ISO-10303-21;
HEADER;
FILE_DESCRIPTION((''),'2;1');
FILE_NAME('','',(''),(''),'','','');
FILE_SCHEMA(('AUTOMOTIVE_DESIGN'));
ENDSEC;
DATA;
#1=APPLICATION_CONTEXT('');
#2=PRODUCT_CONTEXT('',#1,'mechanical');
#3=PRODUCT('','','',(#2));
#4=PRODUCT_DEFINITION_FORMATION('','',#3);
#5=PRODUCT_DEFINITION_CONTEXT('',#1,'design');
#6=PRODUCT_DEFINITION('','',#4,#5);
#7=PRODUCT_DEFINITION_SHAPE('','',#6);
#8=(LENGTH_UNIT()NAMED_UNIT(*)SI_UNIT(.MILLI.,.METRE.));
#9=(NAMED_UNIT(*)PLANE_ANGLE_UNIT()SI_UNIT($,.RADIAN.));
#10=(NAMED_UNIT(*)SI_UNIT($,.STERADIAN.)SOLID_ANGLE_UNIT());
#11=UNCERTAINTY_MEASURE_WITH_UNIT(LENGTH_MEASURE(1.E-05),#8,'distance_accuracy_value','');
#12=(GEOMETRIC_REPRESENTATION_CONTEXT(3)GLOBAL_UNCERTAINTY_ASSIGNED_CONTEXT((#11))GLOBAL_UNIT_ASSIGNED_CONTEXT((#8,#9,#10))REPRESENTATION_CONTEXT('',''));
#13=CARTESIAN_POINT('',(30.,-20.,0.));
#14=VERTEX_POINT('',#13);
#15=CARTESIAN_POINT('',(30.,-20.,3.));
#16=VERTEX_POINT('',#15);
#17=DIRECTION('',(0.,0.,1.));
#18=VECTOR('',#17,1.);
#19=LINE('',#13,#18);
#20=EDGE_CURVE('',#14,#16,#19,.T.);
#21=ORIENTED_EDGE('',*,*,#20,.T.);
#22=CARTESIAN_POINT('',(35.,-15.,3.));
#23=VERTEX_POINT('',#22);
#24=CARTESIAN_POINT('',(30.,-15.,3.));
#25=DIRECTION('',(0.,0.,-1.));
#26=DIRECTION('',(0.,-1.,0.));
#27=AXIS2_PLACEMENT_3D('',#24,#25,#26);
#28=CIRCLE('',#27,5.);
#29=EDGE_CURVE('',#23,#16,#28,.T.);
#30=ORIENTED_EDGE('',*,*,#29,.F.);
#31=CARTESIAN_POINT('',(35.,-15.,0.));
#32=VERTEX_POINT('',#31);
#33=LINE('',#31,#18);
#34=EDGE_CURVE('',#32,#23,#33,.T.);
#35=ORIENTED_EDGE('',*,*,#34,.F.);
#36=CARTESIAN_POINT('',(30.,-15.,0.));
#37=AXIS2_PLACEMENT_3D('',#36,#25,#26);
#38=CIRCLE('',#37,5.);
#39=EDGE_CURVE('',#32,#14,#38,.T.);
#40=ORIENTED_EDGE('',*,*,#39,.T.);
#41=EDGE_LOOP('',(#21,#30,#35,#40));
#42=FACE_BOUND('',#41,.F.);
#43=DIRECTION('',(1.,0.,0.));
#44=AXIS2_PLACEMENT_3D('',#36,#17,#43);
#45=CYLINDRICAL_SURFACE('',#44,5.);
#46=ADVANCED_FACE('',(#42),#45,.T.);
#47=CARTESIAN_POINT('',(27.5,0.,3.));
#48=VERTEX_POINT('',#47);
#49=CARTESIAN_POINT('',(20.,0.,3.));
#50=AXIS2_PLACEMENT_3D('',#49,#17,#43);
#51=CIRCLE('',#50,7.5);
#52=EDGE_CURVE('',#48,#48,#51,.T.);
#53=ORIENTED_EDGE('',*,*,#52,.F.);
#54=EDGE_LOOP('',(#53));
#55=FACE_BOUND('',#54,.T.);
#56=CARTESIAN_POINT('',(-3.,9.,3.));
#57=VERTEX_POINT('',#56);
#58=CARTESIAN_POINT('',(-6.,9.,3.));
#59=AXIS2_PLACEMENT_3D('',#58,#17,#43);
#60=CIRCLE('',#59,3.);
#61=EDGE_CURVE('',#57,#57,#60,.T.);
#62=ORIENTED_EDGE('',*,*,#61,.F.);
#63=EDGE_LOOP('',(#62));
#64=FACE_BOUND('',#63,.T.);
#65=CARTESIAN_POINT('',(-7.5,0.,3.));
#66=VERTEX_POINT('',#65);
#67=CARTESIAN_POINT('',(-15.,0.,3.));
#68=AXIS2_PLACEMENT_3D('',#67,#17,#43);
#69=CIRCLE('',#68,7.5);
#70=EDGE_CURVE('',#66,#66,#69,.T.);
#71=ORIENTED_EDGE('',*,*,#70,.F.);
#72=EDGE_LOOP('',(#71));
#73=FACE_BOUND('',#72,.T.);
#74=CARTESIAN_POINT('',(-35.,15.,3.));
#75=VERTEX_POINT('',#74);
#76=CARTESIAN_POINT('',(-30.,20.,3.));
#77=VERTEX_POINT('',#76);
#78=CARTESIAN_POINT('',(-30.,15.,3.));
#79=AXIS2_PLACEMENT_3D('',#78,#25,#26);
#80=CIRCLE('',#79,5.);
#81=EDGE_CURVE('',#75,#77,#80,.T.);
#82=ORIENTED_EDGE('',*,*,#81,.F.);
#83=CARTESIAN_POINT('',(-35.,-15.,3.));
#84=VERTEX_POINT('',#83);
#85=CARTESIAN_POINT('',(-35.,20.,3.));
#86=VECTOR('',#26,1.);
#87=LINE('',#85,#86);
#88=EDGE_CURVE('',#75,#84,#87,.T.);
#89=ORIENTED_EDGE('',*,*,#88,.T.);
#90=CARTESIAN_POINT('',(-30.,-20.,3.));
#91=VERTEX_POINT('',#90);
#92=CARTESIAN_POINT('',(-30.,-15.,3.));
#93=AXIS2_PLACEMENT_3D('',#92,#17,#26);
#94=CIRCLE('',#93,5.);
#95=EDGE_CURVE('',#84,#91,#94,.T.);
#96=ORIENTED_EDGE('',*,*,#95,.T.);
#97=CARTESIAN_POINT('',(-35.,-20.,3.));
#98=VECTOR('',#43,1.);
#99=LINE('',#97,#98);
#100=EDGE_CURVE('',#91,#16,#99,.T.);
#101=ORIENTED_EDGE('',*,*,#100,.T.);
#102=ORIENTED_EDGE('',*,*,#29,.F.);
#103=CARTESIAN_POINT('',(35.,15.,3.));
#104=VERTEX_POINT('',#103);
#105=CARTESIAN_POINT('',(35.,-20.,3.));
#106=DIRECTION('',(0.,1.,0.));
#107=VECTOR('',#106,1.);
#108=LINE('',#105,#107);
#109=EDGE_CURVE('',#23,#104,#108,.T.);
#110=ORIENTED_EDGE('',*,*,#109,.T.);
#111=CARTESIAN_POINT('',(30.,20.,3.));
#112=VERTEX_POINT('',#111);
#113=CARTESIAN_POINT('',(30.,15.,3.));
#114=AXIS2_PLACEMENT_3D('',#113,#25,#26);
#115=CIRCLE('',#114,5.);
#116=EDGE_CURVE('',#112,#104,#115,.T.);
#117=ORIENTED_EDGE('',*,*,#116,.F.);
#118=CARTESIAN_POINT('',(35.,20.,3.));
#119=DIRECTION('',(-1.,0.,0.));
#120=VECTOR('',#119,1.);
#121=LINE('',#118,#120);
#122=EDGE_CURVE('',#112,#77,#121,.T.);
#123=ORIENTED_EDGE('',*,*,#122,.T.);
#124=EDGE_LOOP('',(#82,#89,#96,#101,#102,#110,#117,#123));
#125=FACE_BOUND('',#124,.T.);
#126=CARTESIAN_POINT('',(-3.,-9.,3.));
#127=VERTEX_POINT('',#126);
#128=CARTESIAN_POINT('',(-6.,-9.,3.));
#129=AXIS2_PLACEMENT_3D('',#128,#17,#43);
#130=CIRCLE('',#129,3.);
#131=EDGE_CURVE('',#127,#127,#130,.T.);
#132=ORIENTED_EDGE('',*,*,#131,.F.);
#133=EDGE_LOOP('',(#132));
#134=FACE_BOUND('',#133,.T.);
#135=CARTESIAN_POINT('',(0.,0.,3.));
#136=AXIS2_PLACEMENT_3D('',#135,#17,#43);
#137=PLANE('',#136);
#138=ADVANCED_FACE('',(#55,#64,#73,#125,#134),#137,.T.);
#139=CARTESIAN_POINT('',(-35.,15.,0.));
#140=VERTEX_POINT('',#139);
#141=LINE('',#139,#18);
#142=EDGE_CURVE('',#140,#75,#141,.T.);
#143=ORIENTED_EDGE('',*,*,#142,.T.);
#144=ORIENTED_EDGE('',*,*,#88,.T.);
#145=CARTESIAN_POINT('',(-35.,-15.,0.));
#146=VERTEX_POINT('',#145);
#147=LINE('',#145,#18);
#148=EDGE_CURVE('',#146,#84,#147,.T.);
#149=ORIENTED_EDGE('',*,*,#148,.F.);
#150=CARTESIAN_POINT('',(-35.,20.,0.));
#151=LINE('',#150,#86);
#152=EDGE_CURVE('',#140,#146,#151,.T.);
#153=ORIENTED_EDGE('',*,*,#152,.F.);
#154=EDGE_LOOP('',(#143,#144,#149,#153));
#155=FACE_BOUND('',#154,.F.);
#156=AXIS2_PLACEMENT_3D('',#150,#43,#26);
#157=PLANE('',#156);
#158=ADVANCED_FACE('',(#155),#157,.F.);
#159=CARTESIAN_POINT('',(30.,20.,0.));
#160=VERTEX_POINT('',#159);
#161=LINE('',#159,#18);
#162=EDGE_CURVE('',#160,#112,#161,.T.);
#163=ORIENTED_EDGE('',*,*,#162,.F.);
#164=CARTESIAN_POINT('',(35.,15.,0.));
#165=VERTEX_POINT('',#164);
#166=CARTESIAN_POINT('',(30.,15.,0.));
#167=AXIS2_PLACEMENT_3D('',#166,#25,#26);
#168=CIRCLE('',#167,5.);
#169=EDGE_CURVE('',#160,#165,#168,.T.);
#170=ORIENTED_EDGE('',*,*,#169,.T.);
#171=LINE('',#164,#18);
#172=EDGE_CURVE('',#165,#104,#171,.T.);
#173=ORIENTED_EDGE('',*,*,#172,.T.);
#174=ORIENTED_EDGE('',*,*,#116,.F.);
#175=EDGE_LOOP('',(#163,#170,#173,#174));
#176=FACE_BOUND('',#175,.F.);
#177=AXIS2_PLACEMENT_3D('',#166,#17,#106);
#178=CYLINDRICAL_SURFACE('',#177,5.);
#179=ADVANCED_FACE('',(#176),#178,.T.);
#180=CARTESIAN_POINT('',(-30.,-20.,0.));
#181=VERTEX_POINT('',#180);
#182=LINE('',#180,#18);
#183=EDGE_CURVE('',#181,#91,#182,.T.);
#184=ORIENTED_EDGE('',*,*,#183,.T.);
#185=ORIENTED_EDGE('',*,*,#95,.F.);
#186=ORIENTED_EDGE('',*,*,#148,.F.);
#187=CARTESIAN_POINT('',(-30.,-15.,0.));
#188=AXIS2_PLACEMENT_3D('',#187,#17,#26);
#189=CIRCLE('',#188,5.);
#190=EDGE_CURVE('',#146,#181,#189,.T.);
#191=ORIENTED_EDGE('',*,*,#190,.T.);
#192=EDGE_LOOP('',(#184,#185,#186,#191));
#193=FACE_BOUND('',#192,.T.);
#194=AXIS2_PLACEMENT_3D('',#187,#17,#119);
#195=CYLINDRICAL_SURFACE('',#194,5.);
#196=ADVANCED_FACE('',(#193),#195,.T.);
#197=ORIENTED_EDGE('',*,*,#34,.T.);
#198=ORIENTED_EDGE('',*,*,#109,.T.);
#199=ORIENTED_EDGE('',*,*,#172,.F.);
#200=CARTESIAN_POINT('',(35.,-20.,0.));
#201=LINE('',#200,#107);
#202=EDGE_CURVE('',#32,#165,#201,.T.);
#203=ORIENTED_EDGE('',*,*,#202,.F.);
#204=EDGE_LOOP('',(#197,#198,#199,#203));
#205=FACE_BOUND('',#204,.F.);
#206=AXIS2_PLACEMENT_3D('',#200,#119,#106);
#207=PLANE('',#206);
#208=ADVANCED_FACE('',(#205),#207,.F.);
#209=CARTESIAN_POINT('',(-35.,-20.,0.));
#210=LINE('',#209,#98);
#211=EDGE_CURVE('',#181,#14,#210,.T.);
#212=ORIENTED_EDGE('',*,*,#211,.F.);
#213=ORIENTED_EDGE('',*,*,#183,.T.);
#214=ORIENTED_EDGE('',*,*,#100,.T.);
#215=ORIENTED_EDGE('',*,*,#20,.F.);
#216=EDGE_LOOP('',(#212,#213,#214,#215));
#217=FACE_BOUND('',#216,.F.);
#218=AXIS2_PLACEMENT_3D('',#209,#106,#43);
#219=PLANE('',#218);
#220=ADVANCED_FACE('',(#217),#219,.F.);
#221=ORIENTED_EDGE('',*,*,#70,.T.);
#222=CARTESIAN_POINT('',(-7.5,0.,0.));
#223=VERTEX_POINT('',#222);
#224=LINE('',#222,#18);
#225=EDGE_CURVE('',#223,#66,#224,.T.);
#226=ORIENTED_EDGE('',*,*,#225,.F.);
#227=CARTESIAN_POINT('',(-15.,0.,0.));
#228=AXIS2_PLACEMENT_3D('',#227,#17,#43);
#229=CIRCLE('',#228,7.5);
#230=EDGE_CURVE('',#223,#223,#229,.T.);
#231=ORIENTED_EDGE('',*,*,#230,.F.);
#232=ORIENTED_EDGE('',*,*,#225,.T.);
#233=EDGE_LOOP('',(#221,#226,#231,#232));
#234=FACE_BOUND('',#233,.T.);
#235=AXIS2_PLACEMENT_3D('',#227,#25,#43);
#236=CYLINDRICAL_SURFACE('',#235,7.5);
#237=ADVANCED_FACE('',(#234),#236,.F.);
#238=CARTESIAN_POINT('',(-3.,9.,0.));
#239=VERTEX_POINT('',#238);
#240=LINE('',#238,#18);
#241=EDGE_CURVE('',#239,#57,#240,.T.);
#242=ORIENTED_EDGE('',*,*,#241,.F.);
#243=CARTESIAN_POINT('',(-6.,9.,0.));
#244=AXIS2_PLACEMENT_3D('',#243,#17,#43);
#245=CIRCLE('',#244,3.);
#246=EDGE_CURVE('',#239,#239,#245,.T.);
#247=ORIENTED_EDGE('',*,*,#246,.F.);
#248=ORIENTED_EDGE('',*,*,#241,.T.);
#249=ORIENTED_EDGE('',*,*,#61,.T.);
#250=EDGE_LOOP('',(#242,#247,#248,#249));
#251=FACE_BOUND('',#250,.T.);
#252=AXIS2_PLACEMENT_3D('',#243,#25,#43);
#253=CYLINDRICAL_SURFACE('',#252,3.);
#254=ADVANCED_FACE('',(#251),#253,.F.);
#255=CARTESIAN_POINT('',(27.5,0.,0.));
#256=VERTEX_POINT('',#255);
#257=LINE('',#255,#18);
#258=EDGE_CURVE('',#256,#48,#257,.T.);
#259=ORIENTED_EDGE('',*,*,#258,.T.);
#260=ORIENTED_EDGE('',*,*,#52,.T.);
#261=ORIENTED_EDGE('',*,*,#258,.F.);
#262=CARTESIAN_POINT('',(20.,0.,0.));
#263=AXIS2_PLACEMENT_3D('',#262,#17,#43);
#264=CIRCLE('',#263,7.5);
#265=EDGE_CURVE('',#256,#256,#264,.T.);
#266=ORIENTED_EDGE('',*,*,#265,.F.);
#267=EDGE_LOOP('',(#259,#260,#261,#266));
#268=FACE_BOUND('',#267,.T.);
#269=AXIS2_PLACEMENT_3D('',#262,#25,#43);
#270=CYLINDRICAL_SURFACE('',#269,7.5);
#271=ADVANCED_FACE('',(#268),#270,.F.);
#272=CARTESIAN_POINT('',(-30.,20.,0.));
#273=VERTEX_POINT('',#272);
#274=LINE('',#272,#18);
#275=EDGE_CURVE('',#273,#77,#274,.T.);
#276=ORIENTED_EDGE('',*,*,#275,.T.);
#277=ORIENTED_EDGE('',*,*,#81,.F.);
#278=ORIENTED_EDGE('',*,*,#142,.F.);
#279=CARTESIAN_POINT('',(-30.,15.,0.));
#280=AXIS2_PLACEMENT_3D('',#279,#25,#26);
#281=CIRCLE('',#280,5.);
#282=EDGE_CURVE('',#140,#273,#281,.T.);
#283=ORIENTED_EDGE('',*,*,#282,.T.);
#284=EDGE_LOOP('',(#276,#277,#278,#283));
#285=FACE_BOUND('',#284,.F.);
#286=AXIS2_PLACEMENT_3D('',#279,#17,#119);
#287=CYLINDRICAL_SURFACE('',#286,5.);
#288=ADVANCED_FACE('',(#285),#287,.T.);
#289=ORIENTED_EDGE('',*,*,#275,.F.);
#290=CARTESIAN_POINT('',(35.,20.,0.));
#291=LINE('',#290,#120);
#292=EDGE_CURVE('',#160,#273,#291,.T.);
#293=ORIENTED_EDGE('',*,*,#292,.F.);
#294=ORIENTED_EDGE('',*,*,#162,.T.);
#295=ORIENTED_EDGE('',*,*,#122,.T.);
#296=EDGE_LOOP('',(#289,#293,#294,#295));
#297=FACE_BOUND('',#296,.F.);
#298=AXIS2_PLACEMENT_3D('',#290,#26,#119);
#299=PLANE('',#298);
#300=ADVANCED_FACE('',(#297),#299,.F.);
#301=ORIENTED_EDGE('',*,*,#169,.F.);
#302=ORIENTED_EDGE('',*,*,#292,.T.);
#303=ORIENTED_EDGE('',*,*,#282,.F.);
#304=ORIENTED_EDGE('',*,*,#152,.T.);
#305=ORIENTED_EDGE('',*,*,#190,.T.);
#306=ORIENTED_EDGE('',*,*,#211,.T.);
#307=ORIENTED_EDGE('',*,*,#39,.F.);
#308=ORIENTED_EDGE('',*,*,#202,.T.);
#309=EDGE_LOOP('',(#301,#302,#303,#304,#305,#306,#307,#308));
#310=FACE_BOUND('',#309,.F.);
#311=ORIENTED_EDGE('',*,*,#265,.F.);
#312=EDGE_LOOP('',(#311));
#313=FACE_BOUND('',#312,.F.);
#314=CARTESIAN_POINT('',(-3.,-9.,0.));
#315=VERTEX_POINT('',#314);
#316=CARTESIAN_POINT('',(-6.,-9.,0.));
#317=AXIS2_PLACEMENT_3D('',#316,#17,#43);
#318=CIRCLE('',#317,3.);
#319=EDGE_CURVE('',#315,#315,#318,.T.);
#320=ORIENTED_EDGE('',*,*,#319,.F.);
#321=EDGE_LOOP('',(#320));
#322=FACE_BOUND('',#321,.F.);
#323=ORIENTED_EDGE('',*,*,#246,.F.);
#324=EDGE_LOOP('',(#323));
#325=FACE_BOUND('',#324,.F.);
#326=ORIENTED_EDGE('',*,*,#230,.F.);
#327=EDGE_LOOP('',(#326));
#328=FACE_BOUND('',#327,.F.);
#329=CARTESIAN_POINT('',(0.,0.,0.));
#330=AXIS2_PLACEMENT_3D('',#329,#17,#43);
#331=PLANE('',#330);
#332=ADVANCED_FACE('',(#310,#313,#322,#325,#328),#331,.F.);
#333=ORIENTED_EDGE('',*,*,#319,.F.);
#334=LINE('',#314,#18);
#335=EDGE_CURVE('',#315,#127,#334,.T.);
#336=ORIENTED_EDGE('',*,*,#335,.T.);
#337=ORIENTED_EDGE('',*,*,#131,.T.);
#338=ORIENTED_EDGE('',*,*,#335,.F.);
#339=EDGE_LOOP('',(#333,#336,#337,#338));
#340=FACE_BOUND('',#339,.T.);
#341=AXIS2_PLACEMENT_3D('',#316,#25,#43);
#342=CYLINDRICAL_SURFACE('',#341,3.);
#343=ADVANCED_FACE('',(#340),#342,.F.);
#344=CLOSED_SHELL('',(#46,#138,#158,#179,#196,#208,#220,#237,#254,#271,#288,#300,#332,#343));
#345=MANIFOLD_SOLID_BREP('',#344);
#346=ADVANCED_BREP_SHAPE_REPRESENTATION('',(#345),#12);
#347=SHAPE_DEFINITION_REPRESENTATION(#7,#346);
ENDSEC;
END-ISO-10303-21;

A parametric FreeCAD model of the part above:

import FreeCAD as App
import Part
import Sketcher
Q = App.Units.Quantity


def edges_at(feature, points):
    """Names of the edges that pass closest to the given points."""
    edges = feature.Shape.Edges
    near = lambda p: min(range(len(edges)), key=lambda i: edges[i].distToShape(Part.Vertex(*p))[0])
    return sorted({f"Edge{near(p) + 1}" for p in points})

doc = App.newDocument("Part")
body = doc.addObject("PartDesign::Body", "Body")

# Sketch on XY plane
sketch1 = doc.addObject("Sketcher::SketchObject", "Sketch")
body.addObject(sketch1)
sketch1.AttachmentSupport = (doc.XY_Plane, [""])
sketch1.MapMode = "FlatFace"
sketch1.addGeometry([
    Part.LineSegment(App.Vector(-35, 20, 0), App.Vector(-35, -20, 0)),  # 0
    Part.LineSegment(App.Vector(-35, -20, 0), App.Vector(35, -20, 0)),  # 1
    Part.LineSegment(App.Vector(35, -20, 0), App.Vector(35, 20, 0)),  # 2
    Part.LineSegment(App.Vector(35, 20, 0), App.Vector(-35, 20, 0)),  # 3
    Part.Circle(App.Vector(-6, -9, 0), App.Vector(0, 0, 1), 3),  # 4
    Part.Circle(App.Vector(-15, 0, 0), App.Vector(0, 0, 1), 7.5),  # 5
    Part.Circle(App.Vector(-6, 9, 0), App.Vector(0, 0, 1), 3),  # 6
    Part.Circle(App.Vector(20, 0, 0), App.Vector(0, 0, 1), 7.5),  # 7
], False)
sketch1.addConstraint([
    Sketcher.Constraint("Coincident", 0, 2, 1, 1),
    Sketcher.Constraint("Coincident", 1, 2, 2, 1),
    Sketcher.Constraint("Coincident", 2, 2, 3, 1),
    Sketcher.Constraint("Coincident", 3, 2, 0, 1),
    Sketcher.Constraint("Vertical", 0),
    Sketcher.Constraint("Horizontal", 1),
    Sketcher.Constraint("Vertical", 2),
    Sketcher.Constraint("Horizontal", 3),
    Sketcher.Constraint("Equal", 4, 6),
    Sketcher.Constraint("Equal", 5, 7),
    Sketcher.Constraint("Symmetric", 0, 2, 2, 2, -1, 1),
    Sketcher.Constraint("Symmetric", 4, 3, 6, 3, -1),
    Sketcher.Constraint("PointOnObject", 5, 3, -1),
    Sketcher.Constraint("PointOnObject", 7, 3, -1),
    Sketcher.Constraint("Diameter", 4, Q("6 mm")),
    Sketcher.Constraint("Diameter", 5, Q("15 mm")),
    Sketcher.Constraint("DistanceX", 1, 1, 1, 2, Q("70 mm")),
    Sketcher.Constraint("DistanceY", 0, 2, 0, 1, Q("40 mm")),
    Sketcher.Constraint("DistanceX", 4, 3, -1, 1, Q("6 mm")),
    Sketcher.Constraint("DistanceY", 4, 3, -1, 1, Q("9 mm")),
    Sketcher.Constraint("DistanceX", 5, 3, -1, 1, Q("15 mm")),
    Sketcher.Constraint("DistanceX", -1, 1, 7, 3, Q("20 mm")),
])
pad1 = doc.addObject("PartDesign::Pad", "Pad")
body.addObject(pad1)
pad1.Profile = sketch1
pad1.Length = 3
doc.recompute()

fillet = doc.addObject("PartDesign::Fillet", "Fillet")
body.addObject(fillet)
fillet.Base = (pad1, edges_at(pad1, [
    (-35, 20, 1.5),
    (35, 20, 1.5),
    (35, -20, 1.5),
    (-35, -20, 1.5),
]))
fillet.Radius = 5

doc.recompute()
